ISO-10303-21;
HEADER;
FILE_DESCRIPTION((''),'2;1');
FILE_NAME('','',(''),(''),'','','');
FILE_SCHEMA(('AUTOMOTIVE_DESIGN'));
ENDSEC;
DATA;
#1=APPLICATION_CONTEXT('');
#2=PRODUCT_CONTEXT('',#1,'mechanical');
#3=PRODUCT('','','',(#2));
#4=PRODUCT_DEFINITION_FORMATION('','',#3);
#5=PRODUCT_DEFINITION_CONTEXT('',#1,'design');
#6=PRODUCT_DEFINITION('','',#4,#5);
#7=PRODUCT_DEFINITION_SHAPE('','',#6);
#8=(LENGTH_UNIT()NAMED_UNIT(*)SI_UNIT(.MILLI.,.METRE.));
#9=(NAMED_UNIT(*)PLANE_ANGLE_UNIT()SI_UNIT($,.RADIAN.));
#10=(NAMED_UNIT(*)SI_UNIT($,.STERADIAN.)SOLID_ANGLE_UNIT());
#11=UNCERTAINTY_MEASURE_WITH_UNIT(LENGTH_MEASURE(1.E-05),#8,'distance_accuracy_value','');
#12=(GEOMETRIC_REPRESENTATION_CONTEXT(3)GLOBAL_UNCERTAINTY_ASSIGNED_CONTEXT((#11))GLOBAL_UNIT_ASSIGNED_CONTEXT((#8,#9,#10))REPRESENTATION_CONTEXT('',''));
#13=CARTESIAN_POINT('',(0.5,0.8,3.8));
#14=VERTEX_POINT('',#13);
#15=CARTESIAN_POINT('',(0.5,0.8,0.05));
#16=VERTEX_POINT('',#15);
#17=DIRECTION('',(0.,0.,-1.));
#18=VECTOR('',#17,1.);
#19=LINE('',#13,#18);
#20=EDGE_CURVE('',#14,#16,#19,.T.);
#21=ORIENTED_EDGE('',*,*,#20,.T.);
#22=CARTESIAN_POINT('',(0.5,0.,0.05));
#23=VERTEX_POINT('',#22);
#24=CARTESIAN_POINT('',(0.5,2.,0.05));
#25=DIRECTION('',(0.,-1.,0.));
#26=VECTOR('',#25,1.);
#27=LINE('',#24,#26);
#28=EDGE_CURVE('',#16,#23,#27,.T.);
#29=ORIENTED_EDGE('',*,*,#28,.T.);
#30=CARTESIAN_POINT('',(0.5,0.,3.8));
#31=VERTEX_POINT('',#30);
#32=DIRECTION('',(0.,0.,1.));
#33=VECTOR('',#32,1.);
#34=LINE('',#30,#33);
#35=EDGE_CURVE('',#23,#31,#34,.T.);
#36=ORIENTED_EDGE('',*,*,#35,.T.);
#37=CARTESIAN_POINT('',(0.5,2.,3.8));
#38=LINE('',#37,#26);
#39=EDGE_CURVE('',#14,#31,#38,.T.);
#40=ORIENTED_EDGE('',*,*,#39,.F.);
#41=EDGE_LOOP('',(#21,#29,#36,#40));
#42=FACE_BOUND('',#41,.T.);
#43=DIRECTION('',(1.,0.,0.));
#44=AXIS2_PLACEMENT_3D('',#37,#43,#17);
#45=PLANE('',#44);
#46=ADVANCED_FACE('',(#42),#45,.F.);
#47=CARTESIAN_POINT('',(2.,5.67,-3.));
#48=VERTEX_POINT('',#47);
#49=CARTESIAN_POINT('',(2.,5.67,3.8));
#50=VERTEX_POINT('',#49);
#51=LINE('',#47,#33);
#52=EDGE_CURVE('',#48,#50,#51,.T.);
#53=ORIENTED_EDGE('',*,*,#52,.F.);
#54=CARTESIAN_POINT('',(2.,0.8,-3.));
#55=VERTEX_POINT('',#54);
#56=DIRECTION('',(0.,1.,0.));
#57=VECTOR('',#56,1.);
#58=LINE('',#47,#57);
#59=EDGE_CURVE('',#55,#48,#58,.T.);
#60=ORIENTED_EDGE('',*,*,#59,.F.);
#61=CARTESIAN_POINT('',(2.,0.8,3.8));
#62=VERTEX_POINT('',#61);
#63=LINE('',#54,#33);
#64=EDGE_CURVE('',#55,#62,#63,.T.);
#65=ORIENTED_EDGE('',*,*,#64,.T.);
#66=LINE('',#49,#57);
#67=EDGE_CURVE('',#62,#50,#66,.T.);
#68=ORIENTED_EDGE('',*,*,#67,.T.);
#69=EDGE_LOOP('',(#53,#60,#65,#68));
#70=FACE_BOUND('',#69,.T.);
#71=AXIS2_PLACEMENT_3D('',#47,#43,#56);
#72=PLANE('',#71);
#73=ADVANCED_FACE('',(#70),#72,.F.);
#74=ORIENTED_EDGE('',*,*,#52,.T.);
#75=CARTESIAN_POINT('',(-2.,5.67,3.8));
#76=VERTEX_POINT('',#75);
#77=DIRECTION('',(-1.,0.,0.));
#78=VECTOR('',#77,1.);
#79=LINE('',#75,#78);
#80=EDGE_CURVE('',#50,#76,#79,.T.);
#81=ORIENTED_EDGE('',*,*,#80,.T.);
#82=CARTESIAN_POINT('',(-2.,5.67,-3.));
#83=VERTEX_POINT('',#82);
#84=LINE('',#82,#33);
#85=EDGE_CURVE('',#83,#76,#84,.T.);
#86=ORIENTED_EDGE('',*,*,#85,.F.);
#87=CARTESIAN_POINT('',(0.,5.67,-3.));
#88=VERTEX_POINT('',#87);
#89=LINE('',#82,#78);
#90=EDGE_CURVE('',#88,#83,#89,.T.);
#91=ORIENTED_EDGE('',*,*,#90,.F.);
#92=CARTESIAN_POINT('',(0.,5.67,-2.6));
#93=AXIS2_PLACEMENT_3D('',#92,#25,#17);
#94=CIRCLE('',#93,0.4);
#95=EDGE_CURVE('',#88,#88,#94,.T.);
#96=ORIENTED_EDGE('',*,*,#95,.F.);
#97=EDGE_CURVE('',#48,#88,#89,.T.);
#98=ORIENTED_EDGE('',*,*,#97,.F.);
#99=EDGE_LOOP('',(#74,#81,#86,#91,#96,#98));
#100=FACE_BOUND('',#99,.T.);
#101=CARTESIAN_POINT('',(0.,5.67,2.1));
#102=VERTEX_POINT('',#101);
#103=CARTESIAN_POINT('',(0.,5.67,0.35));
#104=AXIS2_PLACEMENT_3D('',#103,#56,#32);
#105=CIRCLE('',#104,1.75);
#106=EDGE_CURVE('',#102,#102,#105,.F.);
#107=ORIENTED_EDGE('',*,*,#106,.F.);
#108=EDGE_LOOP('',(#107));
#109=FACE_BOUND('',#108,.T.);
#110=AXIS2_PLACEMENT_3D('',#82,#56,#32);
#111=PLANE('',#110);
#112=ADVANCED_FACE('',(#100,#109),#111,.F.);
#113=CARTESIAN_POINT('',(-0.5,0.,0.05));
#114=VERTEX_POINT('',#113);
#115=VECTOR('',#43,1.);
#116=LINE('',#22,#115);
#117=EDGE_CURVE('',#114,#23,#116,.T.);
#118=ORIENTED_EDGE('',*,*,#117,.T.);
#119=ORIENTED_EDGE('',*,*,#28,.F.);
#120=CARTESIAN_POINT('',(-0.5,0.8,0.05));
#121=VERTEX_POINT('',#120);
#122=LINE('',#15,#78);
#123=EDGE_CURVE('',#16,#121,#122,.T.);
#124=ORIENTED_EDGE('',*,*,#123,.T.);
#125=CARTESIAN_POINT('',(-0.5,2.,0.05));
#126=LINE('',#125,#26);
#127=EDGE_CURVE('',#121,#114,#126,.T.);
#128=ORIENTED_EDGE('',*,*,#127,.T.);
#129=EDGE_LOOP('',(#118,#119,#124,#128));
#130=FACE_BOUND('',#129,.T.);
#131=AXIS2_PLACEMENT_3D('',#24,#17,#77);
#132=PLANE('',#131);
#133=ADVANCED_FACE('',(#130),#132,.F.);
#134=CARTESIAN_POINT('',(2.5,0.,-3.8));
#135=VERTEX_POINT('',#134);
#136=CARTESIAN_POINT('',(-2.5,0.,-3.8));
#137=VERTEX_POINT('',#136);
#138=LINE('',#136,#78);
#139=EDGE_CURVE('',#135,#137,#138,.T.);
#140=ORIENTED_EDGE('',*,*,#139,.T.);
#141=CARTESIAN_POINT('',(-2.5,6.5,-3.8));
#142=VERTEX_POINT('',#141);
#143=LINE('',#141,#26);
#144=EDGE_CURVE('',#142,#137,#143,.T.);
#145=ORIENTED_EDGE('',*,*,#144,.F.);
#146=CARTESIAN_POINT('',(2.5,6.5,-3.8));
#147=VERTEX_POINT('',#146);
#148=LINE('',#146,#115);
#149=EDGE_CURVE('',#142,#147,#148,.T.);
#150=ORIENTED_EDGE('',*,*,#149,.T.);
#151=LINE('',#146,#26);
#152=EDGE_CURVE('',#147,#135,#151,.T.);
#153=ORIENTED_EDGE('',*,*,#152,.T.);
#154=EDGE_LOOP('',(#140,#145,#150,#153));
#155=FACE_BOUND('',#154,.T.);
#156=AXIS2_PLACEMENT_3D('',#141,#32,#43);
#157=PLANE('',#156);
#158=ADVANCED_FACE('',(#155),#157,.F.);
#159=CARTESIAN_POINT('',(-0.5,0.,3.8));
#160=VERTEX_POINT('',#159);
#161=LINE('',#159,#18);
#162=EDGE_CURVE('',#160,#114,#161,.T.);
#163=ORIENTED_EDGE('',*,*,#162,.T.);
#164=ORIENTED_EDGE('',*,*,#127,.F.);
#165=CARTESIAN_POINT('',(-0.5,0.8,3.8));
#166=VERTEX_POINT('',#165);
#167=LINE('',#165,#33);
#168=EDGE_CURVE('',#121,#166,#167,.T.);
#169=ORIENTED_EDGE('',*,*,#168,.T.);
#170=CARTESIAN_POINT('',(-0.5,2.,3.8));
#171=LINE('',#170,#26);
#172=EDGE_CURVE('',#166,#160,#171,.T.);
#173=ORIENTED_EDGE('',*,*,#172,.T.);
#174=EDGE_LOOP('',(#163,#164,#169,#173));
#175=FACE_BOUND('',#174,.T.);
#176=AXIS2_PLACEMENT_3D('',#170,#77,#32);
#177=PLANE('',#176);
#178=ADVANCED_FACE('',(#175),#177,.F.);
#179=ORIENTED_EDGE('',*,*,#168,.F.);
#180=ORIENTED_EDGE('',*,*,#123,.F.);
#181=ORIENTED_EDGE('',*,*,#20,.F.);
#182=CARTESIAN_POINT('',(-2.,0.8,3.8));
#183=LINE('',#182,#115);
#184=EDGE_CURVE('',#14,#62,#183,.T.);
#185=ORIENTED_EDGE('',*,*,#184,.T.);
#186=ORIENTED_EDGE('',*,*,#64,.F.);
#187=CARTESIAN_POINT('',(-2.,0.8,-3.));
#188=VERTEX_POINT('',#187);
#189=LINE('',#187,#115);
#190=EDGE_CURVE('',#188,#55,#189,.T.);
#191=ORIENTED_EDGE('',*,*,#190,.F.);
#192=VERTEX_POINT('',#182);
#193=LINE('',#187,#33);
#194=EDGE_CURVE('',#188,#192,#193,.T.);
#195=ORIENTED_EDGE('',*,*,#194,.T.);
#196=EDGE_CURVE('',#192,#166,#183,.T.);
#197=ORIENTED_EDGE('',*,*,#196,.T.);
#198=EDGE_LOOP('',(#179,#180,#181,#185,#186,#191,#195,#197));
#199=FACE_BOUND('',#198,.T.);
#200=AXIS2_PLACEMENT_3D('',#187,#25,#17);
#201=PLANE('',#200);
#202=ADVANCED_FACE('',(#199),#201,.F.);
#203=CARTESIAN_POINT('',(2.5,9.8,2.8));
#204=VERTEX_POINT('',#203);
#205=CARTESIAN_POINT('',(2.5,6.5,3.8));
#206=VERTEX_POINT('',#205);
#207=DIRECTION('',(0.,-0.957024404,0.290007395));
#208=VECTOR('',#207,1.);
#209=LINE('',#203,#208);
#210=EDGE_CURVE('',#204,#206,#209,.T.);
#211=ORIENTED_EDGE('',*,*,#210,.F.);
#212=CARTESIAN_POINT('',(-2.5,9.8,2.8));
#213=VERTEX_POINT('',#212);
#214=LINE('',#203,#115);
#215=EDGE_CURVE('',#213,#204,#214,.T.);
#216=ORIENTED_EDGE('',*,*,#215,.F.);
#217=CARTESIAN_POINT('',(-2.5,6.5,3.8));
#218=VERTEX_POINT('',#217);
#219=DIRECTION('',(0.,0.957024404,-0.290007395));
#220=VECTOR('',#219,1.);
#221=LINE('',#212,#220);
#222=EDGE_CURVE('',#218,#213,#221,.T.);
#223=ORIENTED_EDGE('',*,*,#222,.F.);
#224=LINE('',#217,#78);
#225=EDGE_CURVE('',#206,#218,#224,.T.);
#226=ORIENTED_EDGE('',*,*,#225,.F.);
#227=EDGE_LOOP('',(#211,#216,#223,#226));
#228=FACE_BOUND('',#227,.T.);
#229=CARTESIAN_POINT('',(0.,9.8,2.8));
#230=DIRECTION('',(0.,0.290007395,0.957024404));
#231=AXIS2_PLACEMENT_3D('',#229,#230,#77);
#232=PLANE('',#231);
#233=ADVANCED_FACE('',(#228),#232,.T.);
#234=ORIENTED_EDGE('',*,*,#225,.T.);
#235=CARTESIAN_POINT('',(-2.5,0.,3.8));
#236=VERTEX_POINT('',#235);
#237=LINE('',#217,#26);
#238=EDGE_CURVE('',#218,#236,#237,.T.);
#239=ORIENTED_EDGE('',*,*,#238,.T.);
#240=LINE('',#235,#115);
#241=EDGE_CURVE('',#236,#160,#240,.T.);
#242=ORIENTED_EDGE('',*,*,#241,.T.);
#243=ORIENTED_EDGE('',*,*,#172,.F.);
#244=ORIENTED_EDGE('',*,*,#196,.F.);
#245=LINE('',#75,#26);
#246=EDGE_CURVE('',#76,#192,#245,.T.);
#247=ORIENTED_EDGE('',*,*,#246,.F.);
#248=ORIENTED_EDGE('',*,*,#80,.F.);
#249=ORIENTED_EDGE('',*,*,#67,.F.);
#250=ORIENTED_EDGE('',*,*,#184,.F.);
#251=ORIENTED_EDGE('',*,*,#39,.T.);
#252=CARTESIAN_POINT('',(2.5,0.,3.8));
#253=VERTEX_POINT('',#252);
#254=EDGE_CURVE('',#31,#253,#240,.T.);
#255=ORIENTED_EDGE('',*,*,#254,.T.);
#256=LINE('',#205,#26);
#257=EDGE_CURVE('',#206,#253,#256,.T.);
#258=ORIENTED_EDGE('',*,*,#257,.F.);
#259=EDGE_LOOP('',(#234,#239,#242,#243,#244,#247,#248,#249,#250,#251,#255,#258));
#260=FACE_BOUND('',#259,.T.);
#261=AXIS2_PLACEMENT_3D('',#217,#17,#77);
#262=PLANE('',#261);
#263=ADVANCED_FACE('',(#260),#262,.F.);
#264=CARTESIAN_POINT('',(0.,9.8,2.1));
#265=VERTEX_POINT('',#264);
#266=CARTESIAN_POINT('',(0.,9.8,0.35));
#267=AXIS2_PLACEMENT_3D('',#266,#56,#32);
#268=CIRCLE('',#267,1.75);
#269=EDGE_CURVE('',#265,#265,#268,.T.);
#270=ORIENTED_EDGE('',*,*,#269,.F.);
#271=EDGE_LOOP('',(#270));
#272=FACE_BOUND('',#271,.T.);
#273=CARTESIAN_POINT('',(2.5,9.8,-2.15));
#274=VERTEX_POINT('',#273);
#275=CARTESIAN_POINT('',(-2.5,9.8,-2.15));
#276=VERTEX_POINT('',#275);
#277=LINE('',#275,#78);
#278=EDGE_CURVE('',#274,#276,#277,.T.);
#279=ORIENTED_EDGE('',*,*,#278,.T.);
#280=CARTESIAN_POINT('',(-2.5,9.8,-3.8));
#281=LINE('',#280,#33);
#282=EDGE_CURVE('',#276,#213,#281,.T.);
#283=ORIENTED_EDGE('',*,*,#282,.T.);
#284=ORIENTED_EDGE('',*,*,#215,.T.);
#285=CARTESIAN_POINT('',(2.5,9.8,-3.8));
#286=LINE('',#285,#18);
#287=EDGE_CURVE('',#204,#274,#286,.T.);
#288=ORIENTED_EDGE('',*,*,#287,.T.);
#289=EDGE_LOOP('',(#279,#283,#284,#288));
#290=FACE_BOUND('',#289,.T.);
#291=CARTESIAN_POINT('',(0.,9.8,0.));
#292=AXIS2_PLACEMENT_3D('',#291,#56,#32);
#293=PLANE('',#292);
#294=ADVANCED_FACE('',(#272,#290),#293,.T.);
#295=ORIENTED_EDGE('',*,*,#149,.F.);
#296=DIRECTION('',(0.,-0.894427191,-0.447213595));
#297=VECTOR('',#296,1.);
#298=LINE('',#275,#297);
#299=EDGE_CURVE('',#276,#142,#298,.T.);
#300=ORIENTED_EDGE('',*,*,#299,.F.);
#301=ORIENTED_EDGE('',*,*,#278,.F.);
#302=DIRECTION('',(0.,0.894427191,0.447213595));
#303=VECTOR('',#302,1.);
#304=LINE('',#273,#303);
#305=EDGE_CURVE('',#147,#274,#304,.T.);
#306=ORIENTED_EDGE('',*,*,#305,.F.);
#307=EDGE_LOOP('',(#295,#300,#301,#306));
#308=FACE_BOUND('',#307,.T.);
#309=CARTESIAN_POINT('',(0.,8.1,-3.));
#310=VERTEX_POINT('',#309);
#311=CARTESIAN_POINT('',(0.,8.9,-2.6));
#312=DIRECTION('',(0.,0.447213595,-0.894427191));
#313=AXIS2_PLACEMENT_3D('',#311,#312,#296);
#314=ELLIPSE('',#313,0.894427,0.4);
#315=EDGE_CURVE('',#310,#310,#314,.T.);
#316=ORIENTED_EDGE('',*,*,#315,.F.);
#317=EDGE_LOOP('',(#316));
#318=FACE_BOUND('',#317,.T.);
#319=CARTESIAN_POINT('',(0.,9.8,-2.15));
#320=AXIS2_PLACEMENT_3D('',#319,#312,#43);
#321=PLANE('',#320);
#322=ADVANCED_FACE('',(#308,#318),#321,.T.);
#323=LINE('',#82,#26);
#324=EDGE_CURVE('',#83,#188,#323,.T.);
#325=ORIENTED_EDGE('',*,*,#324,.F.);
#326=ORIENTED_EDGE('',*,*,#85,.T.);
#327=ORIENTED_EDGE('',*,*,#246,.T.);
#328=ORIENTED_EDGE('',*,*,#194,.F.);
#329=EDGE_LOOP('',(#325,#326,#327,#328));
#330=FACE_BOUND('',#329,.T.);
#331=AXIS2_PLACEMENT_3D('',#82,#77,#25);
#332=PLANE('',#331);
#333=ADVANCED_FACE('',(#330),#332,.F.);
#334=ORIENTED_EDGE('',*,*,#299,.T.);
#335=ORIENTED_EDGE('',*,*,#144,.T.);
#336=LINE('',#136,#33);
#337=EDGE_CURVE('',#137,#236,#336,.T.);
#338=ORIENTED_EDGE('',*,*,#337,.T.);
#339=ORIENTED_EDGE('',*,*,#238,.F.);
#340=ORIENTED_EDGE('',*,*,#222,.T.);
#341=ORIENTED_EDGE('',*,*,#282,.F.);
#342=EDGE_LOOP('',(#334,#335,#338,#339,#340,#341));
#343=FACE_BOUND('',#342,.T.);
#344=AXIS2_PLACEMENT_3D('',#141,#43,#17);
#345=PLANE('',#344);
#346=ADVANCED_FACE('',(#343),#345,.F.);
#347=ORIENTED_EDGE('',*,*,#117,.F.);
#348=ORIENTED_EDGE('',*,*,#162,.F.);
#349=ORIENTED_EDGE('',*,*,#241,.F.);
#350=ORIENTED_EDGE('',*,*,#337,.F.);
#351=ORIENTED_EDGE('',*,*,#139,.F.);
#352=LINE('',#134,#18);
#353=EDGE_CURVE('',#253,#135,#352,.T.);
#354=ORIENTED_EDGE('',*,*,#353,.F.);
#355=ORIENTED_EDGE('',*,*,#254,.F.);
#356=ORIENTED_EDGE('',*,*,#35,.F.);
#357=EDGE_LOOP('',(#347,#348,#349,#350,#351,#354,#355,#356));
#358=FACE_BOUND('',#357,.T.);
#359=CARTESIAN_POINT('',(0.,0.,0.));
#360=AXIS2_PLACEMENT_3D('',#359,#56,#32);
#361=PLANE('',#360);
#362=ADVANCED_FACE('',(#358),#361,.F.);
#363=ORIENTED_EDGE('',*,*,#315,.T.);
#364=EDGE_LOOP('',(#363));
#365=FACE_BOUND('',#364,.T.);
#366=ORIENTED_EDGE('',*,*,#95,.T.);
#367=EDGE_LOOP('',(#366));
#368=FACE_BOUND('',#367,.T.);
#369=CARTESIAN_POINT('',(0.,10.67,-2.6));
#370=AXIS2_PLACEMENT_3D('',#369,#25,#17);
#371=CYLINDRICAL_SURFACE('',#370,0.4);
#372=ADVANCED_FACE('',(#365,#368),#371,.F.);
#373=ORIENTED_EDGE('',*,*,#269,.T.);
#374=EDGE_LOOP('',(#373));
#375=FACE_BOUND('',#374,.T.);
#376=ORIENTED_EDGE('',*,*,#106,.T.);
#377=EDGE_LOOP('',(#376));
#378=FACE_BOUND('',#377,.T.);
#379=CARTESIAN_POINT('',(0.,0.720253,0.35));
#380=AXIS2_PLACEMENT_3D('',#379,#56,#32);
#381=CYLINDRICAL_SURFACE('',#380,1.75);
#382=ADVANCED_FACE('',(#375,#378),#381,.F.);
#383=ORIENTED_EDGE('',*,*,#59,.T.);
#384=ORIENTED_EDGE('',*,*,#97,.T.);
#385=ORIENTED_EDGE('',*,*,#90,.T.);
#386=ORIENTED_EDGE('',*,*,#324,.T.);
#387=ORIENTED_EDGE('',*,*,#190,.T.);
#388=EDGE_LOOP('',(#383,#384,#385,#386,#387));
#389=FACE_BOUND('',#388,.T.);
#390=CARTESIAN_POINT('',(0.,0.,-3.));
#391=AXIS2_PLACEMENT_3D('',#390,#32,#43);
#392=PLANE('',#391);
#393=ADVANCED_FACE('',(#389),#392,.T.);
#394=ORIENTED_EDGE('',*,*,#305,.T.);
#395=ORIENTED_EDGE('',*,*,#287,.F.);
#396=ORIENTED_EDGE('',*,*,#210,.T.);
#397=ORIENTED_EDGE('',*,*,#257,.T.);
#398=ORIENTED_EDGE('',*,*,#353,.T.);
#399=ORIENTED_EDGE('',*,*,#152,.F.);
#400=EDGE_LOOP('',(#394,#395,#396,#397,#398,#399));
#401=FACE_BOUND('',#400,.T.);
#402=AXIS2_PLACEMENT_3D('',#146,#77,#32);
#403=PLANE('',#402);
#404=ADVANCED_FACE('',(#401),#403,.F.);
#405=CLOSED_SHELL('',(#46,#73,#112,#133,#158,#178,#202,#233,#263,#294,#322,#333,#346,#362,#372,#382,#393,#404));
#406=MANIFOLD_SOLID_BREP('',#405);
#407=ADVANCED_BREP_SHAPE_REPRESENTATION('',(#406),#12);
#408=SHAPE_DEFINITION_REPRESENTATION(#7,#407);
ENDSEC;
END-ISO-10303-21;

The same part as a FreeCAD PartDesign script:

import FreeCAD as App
import Part
import Sketcher
Q = App.Units.Quantity


def edges_at(feature, points):
    """Names of the edges that pass closest to the given points."""
    edges = feature.Shape.Edges
    near = lambda p: min(range(len(edges)), key=lambda i: edges[i].distToShape(Part.Vertex(*p))[0])
    return sorted({f"Edge{near(p) + 1}" for p in points})

doc = App.newDocument("Part")
body = doc.addObject("PartDesign::Body", "Body")

# Sketch on XZ plane
sketch1 = doc.addObject("Sketcher::SketchObject", "Sketch")
body.addObject(sketch1)
sketch1.AttachmentSupport = (doc.XZ_Plane, [""])
sketch1.MapMode = "FlatFace"
sketch1.addGeometry([
    Part.LineSegment(App.Vector(-2, -4, 0), App.Vector(-2, 4, 0)),
    Part.LineSegment(App.Vector(-2, 4, 0), App.Vector(2, 4, 0)),
    Part.LineSegment(App.Vector(2, 4, 0), App.Vector(2, -4, 0)),
    Part.LineSegment(App.Vector(2, -4, 0), App.Vector(-2, -4, 0)),
], False)
sketch1.addConstraint([
    Sketcher.Constraint("Coincident", 0, 2, 1, 1),
    Sketcher.Constraint("Coincident", 1, 2, 2, 1),
    Sketcher.Constraint("Coincident", 2, 2, 3, 1),
    Sketcher.Constraint("Coincident", 3, 2, 0, 1),
    Sketcher.Constraint("Vertical", 0),
    Sketcher.Constraint("Horizontal", 1),
    Sketcher.Constraint("Vertical", 2),
    Sketcher.Constraint("Horizontal", 3),
    Sketcher.Constraint("Symmetric", 0, 2, 2, 2, -1, 1),
    Sketcher.Constraint("DistanceX", 1, 1, 1, 2, Q("5 mm")),
    Sketcher.Constraint("DistanceY", 0, 1, 0, 2, Q("7.6 mm")),
])
pad1 = doc.addObject("PartDesign::Pad", "Pad")
body.addObject(pad1)
pad1.Profile = sketch1
pad1.Length = 6.5
pad1.Reversed = True

# Sketch on XZ plane
sketch2 = doc.addObject("Sketcher::SketchObject", "Sketch001")
body.addObject(sketch2)
sketch2.AttachmentSupport = (doc.XZ_Plane, [""])
sketch2.MapMode = "FlatFace"
sketch2.addGeometry([
    Part.LineSegment(App.Vector(-0.5, 3.8, 0), App.Vector(-0.5, 0.1, 0)),
    Part.LineSegment(App.Vector(-0.5, 0.1, 0), App.Vector(0.5, 0.1, 0)),
    Part.LineSegment(App.Vector(0.5, 0.1, 0), App.Vector(0.5, 3.8, 0)),
    Part.LineSegment(App.Vector(0.5, 3.8, 0), App.Vector(-0.5, 3.8, 0)),
], False)
sketch2.addConstraint([
    Sketcher.Constraint("Coincident", 0, 2, 1, 1),
    Sketcher.Constraint("Coincident", 1, 2, 2, 1),
    Sketcher.Constraint("Coincident", 2, 2, 3, 1),
    Sketcher.Constraint("Coincident", 3, 2, 0, 1),
    Sketcher.Constraint("Vertical", 0),
    Sketcher.Constraint("Horizontal", 1),
    Sketcher.Constraint("Vertical", 2),
    Sketcher.Constraint("Horizontal", 3),
    Sketcher.Constraint("DistanceX", 1, 1, 1, 2, Q("1 mm")),
    Sketcher.Constraint("DistanceY", 0, 2, 0, 1, Q("3.75 mm")),
    Sketcher.Constraint("DistanceX", 0, 2, -1, 1, Q("0.5 mm")),
    Sketcher.Constraint("DistanceY", -1, 1, 2, 2, Q("3.8 mm")),
])
pocket1 = doc.addObject("PartDesign::Pocket", "Pocket")
body.addObject(pocket1)
pocket1.Profile = sketch2
pocket1.Length = 2

# Sketch on XY plane
sketch3 = doc.addObject("Sketcher::SketchObject", "Sketch002")
body.addObject(sketch3)
sketch3.AttachmentSupport = (doc.XY_Plane, [""])
sketch3.MapMode = "FlatFace"
sketch3.AttachmentOffset = App.Placement(App.Vector(0, 0, 3.8), App.Rotation())
sketch3.addGeometry([
    Part.LineSegment(App.Vector(-2, 5.7, 0), App.Vector(-2, 0.8, 0)),
    Part.LineSegment(App.Vector(-2, 0.8, 0), App.Vector(2, 0.8, 0)),
    Part.LineSegment(App.Vector(2, 0.8, 0), App.Vector(2, 5.7, 0)),
    Part.LineSegment(App.Vector(2, 5.7, 0), App.Vector(-2, 5.7, 0)),
], False)
sketch3.addConstraint([
    Sketcher.Constraint("Coincident", 0, 2, 1, 1),
    Sketcher.Constraint("Coincident", 1, 2, 2, 1),
    Sketcher.Constraint("Coincident", 2, 2, 3, 1),
    Sketcher.Constraint("Coincident", 3, 2, 0, 1),
    Sketcher.Constraint("Vertical", 0),
    Sketcher.Constraint("Horizontal", 1),
    Sketcher.Constraint("Vertical", 2),
    Sketcher.Constraint("Horizontal", 3),
    Sketcher.Constraint("DistanceX", 1, 1, 1, 2, Q("4 mm")),
    Sketcher.Constraint("DistanceX", 0, 2, -1, 1, Q("2 mm")),
    Sketcher.Constraint("DistanceY", 0, 2, 0, 1, Q("4.87 mm")),
    Sketcher.Constraint("DistanceY", -1, 1, 0, 2, Q("0.8 mm")),
])
pocket2 = doc.addObject("PartDesign::Pocket", "Pocket001")
body.addObject(pocket2)
pocket2.Profile = sketch3
pocket2.Length = 6.8

# Sketch on XZ plane
sketch4 = doc.addObject("Sketcher::SketchObject", "Sketch003")
body.addObject(sketch4)
sketch4.AttachmentSupport = (doc.XZ_Plane, [""])
sketch4.MapMode = "FlatFace"
sketch4.AttachmentOffset = App.Placement(App.Vector(0, 0, -6.5), App.Rotation())
sketch4.addGeometry([
    Part.LineSegment(App.Vector(-2, -4, 0), App.Vector(-2, 4, 0)),
    Part.LineSegment(App.Vector(-2, 4, 0), App.Vector(2, 4, 0)),
    Part.LineSegment(App.Vector(2, 4, 0), App.Vector(2, -4, 0)),
    Part.LineSegment(App.Vector(2, -4, 0), App.Vector(-2, -4, 0)),
], False)
sketch4.addConstraint([
    Sketcher.Constraint("Coincident", 0, 2, 1, 1),
    Sketcher.Constraint("Coincident", 1, 2, 2, 1),
    Sketcher.Constraint("Coincident", 2, 2, 3, 1),
    Sketcher.Constraint("Coincident", 3, 2, 0, 1),
    Sketcher.Constraint("Vertical", 0),
    Sketcher.Constraint("Horizontal", 1),
    Sketcher.Constraint("Vertical", 2),
    Sketcher.Constraint("Horizontal", 3),
    Sketcher.Constraint("Symmetric", 0, 2, 2, 2, -1, 1),
    Sketcher.Constraint("DistanceX", 1, 1, 1, 2, Q("5 mm")),
    Sketcher.Constraint("DistanceY", 0, 1, 0, 2, Q("7.6 mm")),
])
pad2 = doc.addObject("PartDesign::Pad", "Pad001")
body.addObject(pad2)
pad2.Profile = sketch4
pad2.Length = 3.3
pad2.Reversed = True
doc.recompute()

chamfer = doc.addObject("PartDesign::Chamfer", "Chamfer")
body.addObject(chamfer)
chamfer.Base = (pad2, edges_at(pad2, [(0, 9.8, 3.8)]))
chamfer.ChamferType = "Two distances"
chamfer.Size = 3.3
chamfer.Size2 = 1
chamfer.FlipDirection = True
doc.recompute()

chamfer2 = doc.addObject("PartDesign::Chamfer", "Chamfer001")
body.addObject(chamfer2)
chamfer2.Base = (chamfer, edges_at(chamfer, [(0, 9.8, -3.8)]))
chamfer2.ChamferType = "Two distances"
chamfer2.Size = 3.3
chamfer2.Size2 = 1.65
chamfer2.FlipDirection = True

# Sketch on XZ plane
sketch5 = doc.addObject("Sketcher::SketchObject", "Sketch004")
body.addObject(sketch5)
sketch5.AttachmentSupport = (doc.XZ_Plane, [""])
sketch5.MapMode = "FlatFace"
sketch5.AttachmentOffset = App.Placement(App.Vector(0, 0, -5.67), App.Rotation())
sketch5.addGeometry(Part.Circle(App.Vector(0, -2.6, 0), App.Vector(0, 0, 1), 0.4), False)
sketch5.addConstraint([
    Sketcher.Constraint("PointOnObject", 0, 3, -2),
    Sketcher.Constraint("Diameter", 0, Q("0.8 mm")),
    Sketcher.Constraint("DistanceY", 0, 3, -1, 1, Q("2.6 mm")),
])
pocket3 = doc.addObject("PartDesign::Pocket", "Pocket002")
body.addObject(pocket3)
pocket3.Profile = sketch5
pocket3.Length = 5

# Sketch on XZ plane
sketch6 = doc.addObject("Sketcher::SketchObject", "Sketch005")
body.addObject(sketch6)
sketch6.AttachmentSupport = (doc.XZ_Plane, [""])
sketch6.MapMode = "FlatFace"
sketch6.AttachmentOffset = App.Placement(App.Vector(0, 0, -9.8), App.Rotation())
sketch6.addGeometry(Part.Circle(App.Vector(0, 0.3, 0), App.Vector(0, 0, 1), 1.8), False)
sketch6.addConstraint([
    Sketcher.Constraint("PointOnObject", 0, 3, -2),
    Sketcher.Constraint("Diameter", 0, Q("3.5 mm")),
    Sketcher.Constraint("DistanceY", -1, 1, 0, 3, Q("0.35 mm")),
])
pocket4 = doc.addObject("PartDesign::Pocket", "Pocket003")
body.addObject(pocket4)
pocket4.Profile = sketch6
pocket4.Length = 4.13
pocket4.Reversed = True

doc.recompute()
